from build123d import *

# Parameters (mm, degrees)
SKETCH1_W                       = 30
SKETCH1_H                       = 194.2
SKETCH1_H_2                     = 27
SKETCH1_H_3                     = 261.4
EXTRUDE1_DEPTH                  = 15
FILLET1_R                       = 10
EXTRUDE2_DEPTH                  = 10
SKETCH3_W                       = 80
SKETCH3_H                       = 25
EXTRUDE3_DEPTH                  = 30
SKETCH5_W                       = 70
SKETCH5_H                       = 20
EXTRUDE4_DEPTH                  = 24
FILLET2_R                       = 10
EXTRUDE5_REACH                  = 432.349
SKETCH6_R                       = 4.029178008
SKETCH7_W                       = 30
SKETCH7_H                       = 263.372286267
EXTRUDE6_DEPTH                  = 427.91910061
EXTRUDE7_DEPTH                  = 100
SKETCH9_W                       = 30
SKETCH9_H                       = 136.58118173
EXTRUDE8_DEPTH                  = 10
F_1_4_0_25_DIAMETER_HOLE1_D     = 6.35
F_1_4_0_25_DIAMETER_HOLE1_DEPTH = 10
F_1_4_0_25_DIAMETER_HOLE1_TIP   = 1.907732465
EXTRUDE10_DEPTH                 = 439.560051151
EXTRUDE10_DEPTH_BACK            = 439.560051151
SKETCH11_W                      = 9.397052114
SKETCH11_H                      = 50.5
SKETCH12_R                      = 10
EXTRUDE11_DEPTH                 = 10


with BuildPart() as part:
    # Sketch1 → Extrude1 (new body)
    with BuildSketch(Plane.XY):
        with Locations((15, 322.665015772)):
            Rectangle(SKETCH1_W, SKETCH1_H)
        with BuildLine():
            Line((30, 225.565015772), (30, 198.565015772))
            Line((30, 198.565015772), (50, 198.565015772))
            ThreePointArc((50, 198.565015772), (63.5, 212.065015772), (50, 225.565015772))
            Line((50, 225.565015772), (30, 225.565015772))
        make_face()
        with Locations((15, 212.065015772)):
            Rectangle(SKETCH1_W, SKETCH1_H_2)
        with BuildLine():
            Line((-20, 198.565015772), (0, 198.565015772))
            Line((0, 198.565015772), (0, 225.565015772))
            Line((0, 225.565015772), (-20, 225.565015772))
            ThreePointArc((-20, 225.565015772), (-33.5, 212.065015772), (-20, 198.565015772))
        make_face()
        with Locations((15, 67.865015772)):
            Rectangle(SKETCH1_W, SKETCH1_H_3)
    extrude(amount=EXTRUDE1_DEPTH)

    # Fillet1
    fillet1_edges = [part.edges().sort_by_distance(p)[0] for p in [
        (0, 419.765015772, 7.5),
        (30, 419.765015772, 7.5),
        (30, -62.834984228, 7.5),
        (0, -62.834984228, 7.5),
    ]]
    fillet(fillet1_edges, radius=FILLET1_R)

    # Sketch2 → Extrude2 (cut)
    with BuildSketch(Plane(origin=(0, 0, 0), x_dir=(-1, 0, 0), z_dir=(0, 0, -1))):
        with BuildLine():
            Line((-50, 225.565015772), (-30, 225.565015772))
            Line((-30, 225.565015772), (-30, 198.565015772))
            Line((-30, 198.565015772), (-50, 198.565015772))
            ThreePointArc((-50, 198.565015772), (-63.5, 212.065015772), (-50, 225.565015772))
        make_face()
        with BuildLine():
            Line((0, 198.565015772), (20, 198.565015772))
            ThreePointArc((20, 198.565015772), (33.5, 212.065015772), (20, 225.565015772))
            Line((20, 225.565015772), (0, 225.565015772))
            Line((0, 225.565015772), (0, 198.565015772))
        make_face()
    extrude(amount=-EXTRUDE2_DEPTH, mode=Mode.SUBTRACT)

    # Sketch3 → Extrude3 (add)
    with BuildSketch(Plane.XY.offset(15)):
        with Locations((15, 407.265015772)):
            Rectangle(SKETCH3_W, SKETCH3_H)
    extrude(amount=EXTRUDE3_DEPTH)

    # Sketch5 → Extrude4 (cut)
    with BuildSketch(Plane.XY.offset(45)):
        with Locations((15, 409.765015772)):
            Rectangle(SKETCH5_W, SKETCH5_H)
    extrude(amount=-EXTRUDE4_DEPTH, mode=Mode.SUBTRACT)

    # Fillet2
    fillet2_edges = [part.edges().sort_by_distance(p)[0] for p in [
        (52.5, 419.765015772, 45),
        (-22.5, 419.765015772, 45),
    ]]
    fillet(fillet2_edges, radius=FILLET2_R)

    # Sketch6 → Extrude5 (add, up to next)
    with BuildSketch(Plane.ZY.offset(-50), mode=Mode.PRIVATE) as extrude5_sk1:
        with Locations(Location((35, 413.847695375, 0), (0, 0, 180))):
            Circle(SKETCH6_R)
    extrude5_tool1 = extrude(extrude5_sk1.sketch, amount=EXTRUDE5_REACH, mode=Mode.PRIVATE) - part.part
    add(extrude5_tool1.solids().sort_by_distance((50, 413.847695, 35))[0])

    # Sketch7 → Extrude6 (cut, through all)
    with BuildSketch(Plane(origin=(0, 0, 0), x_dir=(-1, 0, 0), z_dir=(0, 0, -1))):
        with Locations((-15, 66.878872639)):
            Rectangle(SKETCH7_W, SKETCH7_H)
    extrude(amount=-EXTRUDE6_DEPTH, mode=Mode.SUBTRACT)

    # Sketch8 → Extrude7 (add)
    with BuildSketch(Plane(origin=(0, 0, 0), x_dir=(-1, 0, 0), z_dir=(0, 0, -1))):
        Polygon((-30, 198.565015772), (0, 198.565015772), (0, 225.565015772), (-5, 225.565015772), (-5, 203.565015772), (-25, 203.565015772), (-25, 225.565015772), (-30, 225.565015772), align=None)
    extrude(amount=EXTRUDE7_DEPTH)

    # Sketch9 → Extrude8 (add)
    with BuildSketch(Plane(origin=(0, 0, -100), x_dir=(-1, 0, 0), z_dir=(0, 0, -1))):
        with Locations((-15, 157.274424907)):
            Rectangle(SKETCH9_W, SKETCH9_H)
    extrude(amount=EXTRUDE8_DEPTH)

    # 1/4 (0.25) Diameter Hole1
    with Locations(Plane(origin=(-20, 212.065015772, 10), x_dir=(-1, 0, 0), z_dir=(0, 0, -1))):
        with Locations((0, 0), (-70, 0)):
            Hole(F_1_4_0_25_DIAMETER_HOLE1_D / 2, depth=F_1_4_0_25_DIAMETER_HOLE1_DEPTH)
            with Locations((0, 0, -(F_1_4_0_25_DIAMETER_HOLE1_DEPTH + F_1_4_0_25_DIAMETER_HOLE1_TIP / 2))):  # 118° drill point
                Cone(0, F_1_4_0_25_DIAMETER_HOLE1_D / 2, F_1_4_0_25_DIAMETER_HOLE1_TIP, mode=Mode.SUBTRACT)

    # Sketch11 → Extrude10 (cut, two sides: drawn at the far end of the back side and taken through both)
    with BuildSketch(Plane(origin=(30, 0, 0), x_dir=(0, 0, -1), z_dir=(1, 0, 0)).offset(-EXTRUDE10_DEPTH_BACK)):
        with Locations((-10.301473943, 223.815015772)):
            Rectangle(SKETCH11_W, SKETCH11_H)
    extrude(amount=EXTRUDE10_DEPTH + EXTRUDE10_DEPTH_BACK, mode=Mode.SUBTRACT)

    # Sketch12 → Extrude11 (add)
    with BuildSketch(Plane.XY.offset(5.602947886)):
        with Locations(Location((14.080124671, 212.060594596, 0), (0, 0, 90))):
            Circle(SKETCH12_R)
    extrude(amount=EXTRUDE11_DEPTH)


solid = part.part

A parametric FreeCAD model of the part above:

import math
import FreeCAD as App
import Part
import Sketcher
from FreeCAD import Vector
Q = App.Units.Quantity


def edges_at(feature, points):
    """Names of the edges that pass closest to the given points."""
    edges = feature.Shape.Edges
    near = lambda p: min(range(len(edges)), key=lambda i: edges[i].distToShape(Part.Vertex(*p))[0])
    return sorted({f"Edge{near(p) + 1}" for p in points})


def add_polygon(sketch, points):
    """Adds a closed chain of lines whose ends are joined by coincident constraints."""
    first, n = sketch.GeometryCount, len(points)
    for a, b in zip(points, points[1:] + points[:1]):
        sketch.addGeometry(Part.LineSegment(App.Vector(*a, 0), App.Vector(*b, 0)), False)
    for i in range(n):
        sketch.addConstraint(Sketcher.Constraint("Coincident", first + i, 2, first + (i + 1) % n, 1))

doc = App.newDocument("Part")
body = doc.addObject("PartDesign::Body", "Body")

sketch1 = doc.addObject("Sketcher::SketchObject", "Sketch")
body.addObject(sketch1)
sketch1.AttachmentSupport = (doc.XY_Plane, [""])
sketch1.MapMode = "FlatFace"
sketch1.addGeometry(Part.LineSegment(Vector(0, 420, 0), Vector(0, 226, 0)), False)
sketch1.addGeometry(Part.LineSegment(Vector(0, 226, 0), Vector(-20, 226, 0)), False)
sketch1.addGeometry(Part.ArcOfCircle(Part.Circle(Vector(-20, 212, 0), Vector(0, 0, 1), 14), math.radians(90), math.radians(270)), False)
sketch1.addGeometry(Part.LineSegment(Vector(-20, 199, 0), Vector(0, 199, 0)), False)
sketch1.addGeometry(Part.LineSegment(Vector(0, 199, 0), Vector(0, -63, 0)), False)
sketch1.addGeometry(Part.LineSegment(Vector(0, -63, 0), Vector(30, -63, 0)), False)
sketch1.addGeometry(Part.LineSegment(Vector(30, -63, 0), Vector(30, 199, 0)), False)
sketch1.addGeometry(Part.LineSegment(Vector(30, 199, 0), Vector(50, 199, 0)), False)
sketch1.addGeometry(Part.ArcOfCircle(Part.Circle(Vector(50, 212, 0), Vector(0, 0, 1), 14), math.radians(-90), math.radians(90)), False)
sketch1.addGeometry(Part.LineSegment(Vector(50, 226, 0), Vector(30, 226, 0)), False)
sketch1.addGeometry(Part.LineSegment(Vector(30, 226, 0), Vector(30, 420, 0)), False)
sketch1.addGeometry(Part.LineSegment(Vector(30, 420, 0), Vector(0, 420, 0)), False)
sketch1.addConstraint(Sketcher.Constraint("Coincident", 0, 2, 1, 1))
sketch1.addConstraint(Sketcher.Constraint("Tangent", 1, 2, 2, 1))
sketch1.addConstraint(Sketcher.Constraint("Tangent", 2, 2, 3, 1))
sketch1.addConstraint(Sketcher.Constraint("Coincident", 3, 2, 4, 1))
sketch1.addConstraint(Sketcher.Constraint("Coincident", 4, 2, 5, 1))
sketch1.addConstraint(Sketcher.Constraint("Coincident", 5, 2, 6, 1))
sketch1.addConstraint(Sketcher.Constraint("Coincident", 6, 2, 7, 1))
sketch1.addConstraint(Sketcher.Constraint("Tangent", 7, 2, 8, 1))
sketch1.addConstraint(Sketcher.Constraint("Tangent", 8, 2, 9, 1))
sketch1.addConstraint(Sketcher.Constraint("Coincident", 9, 2, 10, 1))
sketch1.addConstraint(Sketcher.Constraint("Coincident", 10, 2, 11, 1))
sketch1.addConstraint(Sketcher.Constraint("Coincident", 11, 2, 0, 1))
sketch1.addConstraint(Sketcher.Constraint("Vertical", 0))
sketch1.addConstraint(Sketcher.Constraint("Horizontal", 1))
sketch1.addConstraint(Sketcher.Constraint("Horizontal", 3))
sketch1.addConstraint(Sketcher.Constraint("Vertical", 4))
sketch1.addConstraint(Sketcher.Constraint("Horizontal", 5))
sketch1.addConstraint(Sketcher.Constraint("Vertical", 6))
sketch1.addConstraint(Sketcher.Constraint("Horizontal", 7))
sketch1.addConstraint(Sketcher.Constraint("Horizontal", 9))
sketch1.addConstraint(Sketcher.Constraint("Vertical", 10))
sketch1.addConstraint(Sketcher.Constraint("Horizontal", 11))
sketch1.addConstraint(Sketcher.Constraint("Equal", 2, 8))
sketch1.addConstraint(Sketcher.Constraint("PointOnObject", 0, 2, -2))
sketch1.addConstraint(Sketcher.Constraint("PointOnObject", 3, 2, -2))
sketch1.addConstraint(Sketcher.Constraint("Horizontal", 2, 3, 8, 3))
sketch1.addConstraint(Sketcher.Constraint("Vertical", 6, 2, 9, 2))
sketch1.addConstraint(Sketcher.Constraint("Equal", 3, 7))
sketch1.addConstraint(Sketcher.Constraint("Radius", 2, Q("13.5 mm")))
sketch1.addConstraint(Sketcher.Constraint("DistanceX", 1, 2, 1, 1, Q("20 mm")))
sketch1.addConstraint(Sketcher.Constraint("DistanceX", 5, 1, 5, 2, Q("30 mm")))
sketch1.addConstraint(Sketcher.Constraint("DistanceY", 0, 2, 0, 1, Q("194.2 mm")))
sketch1.addConstraint(Sketcher.Constraint("DistanceY", 4, 2, 4, 1, Q("261.4 mm")))
sketch1.addConstraint(Sketcher.Constraint("DistanceY", -1, 1, 2, 3, Q("212.065016 mm")))
pad1 = doc.addObject("PartDesign::Pad", "Pad")
body.addObject(pad1)
pad1.Profile = sketch1
pad1.Length = 15
doc.recompute()

fillet = doc.addObject("PartDesign::Fillet", "Fillet")
body.addObject(fillet)
fillet.Base = (pad1, edges_at(pad1, [
    (0, 419.765, 7.5),
    (30, 419.765, 7.5),
    (30, -62.835, 7.5),
    (0, -62.835, 7.5),
]))
fillet.Radius = 10

sketch2 = doc.addObject("Sketcher::SketchObject", "Sketch001")
body.addObject(sketch2)
sketch2.AttachmentSupport = (doc.XY_Plane, [""])
sketch2.MapMode = "FlatFace"
sketch2.addGeometry(Part.LineSegment(Vector(30, 226, 0), Vector(50, 226, 0)), False)
sketch2.addGeometry(Part.ArcOfCircle(Part.Circle(Vector(50, 212, 0), Vector(0, 0, 1), 14), math.radians(-90), math.radians(90)), False)
sketch2.addGeometry(Part.LineSegment(Vector(50, 199, 0), Vector(30, 199, 0)), False)
sketch2.addGeometry(Part.LineSegment(Vector(30, 199, 0), Vector(30, 226, 0)), False)
sketch2.addGeometry(Part.LineSegment(Vector(0, 199, 0), Vector(-20, 199, 0)), False)
sketch2.addGeometry(Part.ArcOfCircle(Part.Circle(Vector(-20, 212, 0), Vector(0, 0, 1), 14), math.radians(90), math.radians(270)), False)
sketch2.addGeometry(Part.LineSegment(Vector(-20, 226, 0), Vector(0, 226, 0)), False)
sketch2.addGeometry(Part.LineSegment(Vector(0, 226, 0), Vector(0, 199, 0)), False)
sketch2.addConstraint(Sketcher.Constraint("Tangent", 0, 2, 1, 2))
sketch2.addConstraint(Sketcher.Constraint("Tangent", 1, 1, 2, 1))
sketch2.addConstraint(Sketcher.Constraint("Coincident", 2, 2, 3, 1))
sketch2.addConstraint(Sketcher.Constraint("Coincident", 3, 2, 0, 1))
sketch2.addConstraint(Sketcher.Constraint("Tangent", 4, 2, 5, 2))
sketch2.addConstraint(Sketcher.Constraint("Tangent", 5, 1, 6, 1))
sketch2.addConstraint(Sketcher.Constraint("Coincident", 6, 2, 7, 1))
sketch2.addConstraint(Sketcher.Constraint("Coincident", 7, 2, 4, 1))
sketch2.addConstraint(Sketcher.Constraint("Horizontal", 0))
sketch2.addConstraint(Sketcher.Constraint("Horizontal", 2))
sketch2.addConstraint(Sketcher.Constraint("Vertical", 3))
sketch2.addConstraint(Sketcher.Constraint("Horizontal", 4))
sketch2.addConstraint(Sketcher.Constraint("Horizontal", 6))
sketch2.addConstraint(Sketcher.Constraint("Vertical", 7))
sketch2.addConstraint(Sketcher.Constraint("Equal", 1, 5))
sketch2.addConstraint(Sketcher.Constraint("PointOnObject", 6, 2, -2))
sketch2.addConstraint(Sketcher.Constraint("Horizontal", 1, 3, 5, 3))
sketch2.addConstraint(Sketcher.Constraint("Equal", 2, 4))
sketch2.addConstraint(Sketcher.Constraint("Radius", 1, Q("13.5 mm")))
sketch2.addConstraint(Sketcher.Constraint("DistanceX", 0, 1, 0, 2, Q("20 mm")))
sketch2.addConstraint(Sketcher.Constraint("DistanceX", -1, 1, 1, 3, Q("50 mm")))
sketch2.addConstraint(Sketcher.Constraint("DistanceY", -1, 1, 1, 3, Q("212.065016 mm")))
pocket1 = doc.addObject("PartDesign::Pocket", "Pocket")
body.addObject(pocket1)
pocket1.Profile = sketch2
pocket1.Length = 10
pocket1.Reversed = True

sketch3 = doc.addObject("Sketcher::SketchObject", "Sketch002")
body.addObject(sketch3)
sketch3.AttachmentSupport = (doc.XY_Plane, [""])
sketch3.MapMode = "FlatFace"
sketch3.AttachmentOffset = App.Placement(Vector(0, 0, 15), App.Rotation())
add_polygon(sketch3, [(-25, 420), (-25, 395), (55, 395), (55, 420)])
sketch3.addConstraint(Sketcher.Constraint("Vertical", 0))
sketch3.addConstraint(Sketcher.Constraint("Horizontal", 1))
sketch3.addConstraint(Sketcher.Constraint("Vertical", 2))
sketch3.addConstraint(Sketcher.Constraint("Horizontal", 3))
sketch3.addConstraint(Sketcher.Constraint("DistanceX", 1, 1, 1, 2, Q("80 mm")))
sketch3.addConstraint(Sketcher.Constraint("DistanceY", 0, 2, 0, 1, Q("25 mm")))
sketch3.addConstraint(Sketcher.Constraint("DistanceX", 0, 2, -1, 1, Q("25 mm")))
sketch3.addConstraint(Sketcher.Constraint("DistanceY", -1, 1, 0, 2, Q("394.765016 mm")))
pad2 = doc.addObject("PartDesign::Pad", "Pad001")
body.addObject(pad2)
pad2.Profile = sketch3
pad2.Length = 30

sketch4 = doc.addObject("Sketcher::SketchObject", "Sketch003")
body.addObject(sketch4)
sketch4.AttachmentSupport = (doc.XY_Plane, [""])
sketch4.MapMode = "FlatFace"
sketch4.AttachmentOffset = App.Placement(Vector(0, 0, 45), App.Rotation())
add_polygon(sketch4, [(-20, 420), (-20, 400), (50, 400), (50, 420)])
sketch4.addConstraint(Sketcher.Constraint("Vertical", 0))
sketch4.addConstraint(Sketcher.Constraint("Horizontal", 1))
sketch4.addConstraint(Sketcher.Constraint("Vertical", 2))
sketch4.addConstraint(Sketcher.Constraint("Horizontal", 3))
sketch4.addConstraint(Sketcher.Constraint("DistanceX", 1, 1, 1, 2, Q("70 mm")))
sketch4.addConstraint(Sketcher.Constraint("DistanceY", 0, 2, 0, 1, Q("20 mm")))
sketch4.addConstraint(Sketcher.Constraint("DistanceX", 0, 2, -1, 1, Q("20 mm")))
sketch4.addConstraint(Sketcher.Constraint("DistanceY", -1, 1, 0, 2, Q("399.765016 mm")))
pocket2 = doc.addObject("PartDesign::Pocket", "Pocket001")
body.addObject(pocket2)
pocket2.Profile = sketch4
pocket2.Length = 24
doc.recompute()

fillet2 = doc.addObject("PartDesign::Fillet", "Fillet001")
body.addObject(fillet2)
fillet2.Base = (pocket2, edges_at(pocket2, [(52.5, 419.765, 45), (-22.5, 419.765, 45)]))
fillet2.Radius = 10

sketch5 = doc.addObject("Sketcher::SketchObject", "Sketch004")
body.addObject(sketch5)
sketch5.AttachmentSupport = (doc.YZ_Plane, [""])
sketch5.MapMode = "FlatFace"
sketch5.AttachmentOffset = App.Placement(Vector(0, 0, 50), App.Rotation())
sketch5.addGeometry(Part.Circle(Vector(413.8, 35, 0), Vector(0, 0, 1), 4), False)
sketch5.addConstraint(Sketcher.Constraint("DistanceY", -1, 1, 0, 3, Q("35 mm")))
sketch5.addConstraint(Sketcher.Constraint("Diameter", 0, Q("8.058356 mm")))
sketch5.addConstraint(Sketcher.Constraint("DistanceX", -1, 1, 0, 3, Q("413.847695 mm")))
pad3 = doc.addObject("PartDesign::Pad", "Pad002")
body.addObject(pad3)
pad3.Profile = sketch5
pad3.Type = "UpToFirst"
pad3.Reversed = True

sketch6 = doc.addObject("Sketcher::SketchObject", "Sketch005")
body.addObject(sketch6)
sketch6.AttachmentSupport = (doc.XY_Plane, [""])
sketch6.MapMode = "FlatFace"
add_polygon(sketch6, [(30, 199), (30, -65), (0, -65), (0, 199)])
sketch6.addConstraint(Sketcher.Constraint("Vertical", 0))
sketch6.addConstraint(Sketcher.Constraint("Horizontal", 1))
sketch6.addConstraint(Sketcher.Constraint("Vertical", 2))
sketch6.addConstraint(Sketcher.Constraint("Horizontal", 3))
sketch6.addConstraint(Sketcher.Constraint("PointOnObject", 1, 2, -2))
sketch6.addConstraint(Sketcher.Constraint("DistanceX", 1, 2, 1, 1, Q("30 mm")))
sketch6.addConstraint(Sketcher.Constraint("DistanceY", 0, 2, 0, 1, Q("263.372286 mm")))
sketch6.addConstraint(Sketcher.Constraint("DistanceY", 0, 2, -1, 1, Q("64.80727 mm")))
pocket3 = doc.addObject("PartDesign::Pocket", "Pocket002")
body.addObject(pocket3)
pocket3.Profile = sketch6
pocket3.Type = "ThroughAll"
pocket3.Reversed = True

sketch7 = doc.addObject("Sketcher::SketchObject", "Sketch006")
body.addObject(sketch7)
sketch7.AttachmentSupport = (doc.XY_Plane, [""])
sketch7.MapMode = "FlatFace"
add_polygon(sketch7, [(30, 199), (0, 199), (0, 226), (5, 226), (5, 204), (25, 204), (25, 226), (30, 226)])
sketch7.addConstraint(Sketcher.Constraint("Horizontal", 0))
sketch7.addConstraint(Sketcher.Constraint("Vertical", 1))
sketch7.addConstraint(Sketcher.Constraint("Horizontal", 2))
sketch7.addConstraint(Sketcher.Constraint("Vertical", 3))
sketch7.addConstraint(Sketcher.Constraint("Horizontal", 4))
sketch7.addConstraint(Sketcher.Constraint("Vertical", 5))
sketch7.addConstraint(Sketcher.Constraint("Horizontal", 6))
sketch7.addConstraint(Sketcher.Constraint("Vertical", 7))
sketch7.addConstraint(Sketcher.Constraint("PointOnObject", 0, 2, -2))
sketch7.addConstraint(Sketcher.Constraint("Horizontal", 2, 2, 5, 2))
sketch7.addConstraint(Sketcher.Constraint("Equal", 2, 6))
sketch7.addConstraint(Sketcher.Constraint("DistanceX", 0, 2, 0, 1, Q("30 mm")))
sketch7.addConstraint(Sketcher.Constraint("DistanceX", 2, 1, 2, 2, Q("5 mm")))
sketch7.addConstraint(Sketcher.Constraint("DistanceY", 1, 1, 1, 2, Q("27 mm")))
sketch7.addConstraint(Sketcher.Constraint("DistanceY", 3, 2, 3, 1, Q("22 mm")))
sketch7.addConstraint(Sketcher.Constraint("DistanceY", -1, 1, 0, 2, Q("198.565016 mm")))
pad4 = doc.addObject("PartDesign::Pad", "Pad003")
body.addObject(pad4)
pad4.Profile = sketch7
pad4.Length = 100
pad4.Reversed = True

sketch8 = doc.addObject("Sketcher::SketchObject", "Sketch007")
body.addObject(sketch8)
sketch8.AttachmentSupport = (doc.XY_Plane, [""])
sketch8.MapMode = "FlatFace"
sketch8.AttachmentOffset = App.Placement(Vector(0, 0, -100), App.Rotation())
add_polygon(sketch8, [(30, 226), (30, 89), (0, 89), (0, 226)])
sketch8.addConstraint(Sketcher.Constraint("Vertical", 0))
sketch8.addConstraint(Sketcher.Constraint("Horizontal", 1))
sketch8.addConstraint(Sketcher.Constraint("Vertical", 2))
sketch8.addConstraint(Sketcher.Constraint("Horizontal", 3))
sketch8.addConstraint(Sketcher.Constraint("PointOnObject", 1, 2, -2))
sketch8.addConstraint(Sketcher.Constraint("DistanceX", 1, 2, 1, 1, Q("30 mm")))
sketch8.addConstraint(Sketcher.Constraint("DistanceY", 0, 2, 0, 1, Q("136.581182 mm")))
sketch8.addConstraint(Sketcher.Constraint("DistanceY", -1, 1, 0, 2, Q("88.983834 mm")))
pad5 = doc.addObject("PartDesign::Pad", "Pad004")
body.addObject(pad5)
pad5.Profile = sketch8
pad5.Length = 10
pad5.Reversed = True

sketch9 = doc.addObject("Sketcher::SketchObject", "Sketch008")
body.addObject(sketch9)
sketch9.AttachmentSupport = (doc.XY_Plane, [""])
sketch9.MapMode = "FlatFace"
sketch9.AttachmentOffset = App.Placement(Vector(0, 0, 10), App.Rotation())
sketch9.addGeometry(Part.Circle(Vector(-20, 212.1, 0), Vector(0, 0, 1), 3.2), False)
sketch9.addGeometry(Part.Circle(Vector(50, 212.1, 0), Vector(0, 0, 1), 3.2), False)
sketch9.addConstraint(Sketcher.Constraint("Equal", 0, 1))
sketch9.addConstraint(Sketcher.Constraint("Horizontal", 0, 3, 1, 3))
sketch9.addConstraint(Sketcher.Constraint("Diameter", 0, Q("6.35 mm")))
sketch9.addConstraint(Sketcher.Constraint("DistanceX", 0, 3, -1, 1, Q("20 mm")))
sketch9.addConstraint(Sketcher.Constraint("DistanceX", -1, 1, 1, 3, Q("50 mm")))
sketch9.addConstraint(Sketcher.Constraint("DistanceY", -1, 1, 0, 3, Q("212.065016 mm")))
doc.recompute()
hole = doc.addObject("PartDesign::Hole", "Hole")
body.addObject(hole)
hole.Profile = sketch9
hole.ThreadType = "None"
hole.Diameter = 6.35
hole.DepthType = "Dimension"
hole.Depth = 10
hole.DrillPoint = "Angled"
hole.DrillPointAngle = 118
hole.Reversed = True

sketch10 = doc.addObject("Sketcher::SketchObject", "Sketch009")
body.addObject(sketch10)
sketch10.AttachmentSupport = (doc.YZ_Plane, [""])
sketch10.MapMode = "FlatFace"
sketch10.AttachmentOffset = App.Placement(Vector(0, 0, 30), App.Rotation())
add_polygon(sketch10, [(249, 15), (199, 15), (199, 6), (249, 6)])
sketch10.addConstraint(Sketcher.Constraint("Horizontal", 0))
sketch10.addConstraint(Sketcher.Constraint("Vertical", 1))
sketch10.addConstraint(Sketcher.Constraint("Horizontal", 2))
sketch10.addConstraint(Sketcher.Constraint("Vertical", 3))
sketch10.addConstraint(Sketcher.Constraint("DistanceX", 0, 2, 0, 1, Q("50.5 mm")))
sketch10.addConstraint(Sketcher.Constraint("DistanceY", -1, 1, 0, 2, Q("15 mm")))
sketch10.addConstraint(Sketcher.Constraint("DistanceY", 1, 2, 1, 1, Q("9.397052 mm")))
sketch10.addConstraint(Sketcher.Constraint("DistanceX", -1, 1, 0, 2, Q("198.565016 mm")))
pocket4 = doc.addObject("PartDesign::Pocket", "Pocket003")
body.addObject(pocket4)
pocket4.Profile = sketch10
pocket4.Type = "ThroughAll"
pocket4.Midplane = True

sketch11 = doc.addObject("Sketcher::SketchObject", "Sketch010")
body.addObject(sketch11)
sketch11.AttachmentSupport = (doc.XY_Plane, [""])
sketch11.MapMode = "FlatFace"
sketch11.AttachmentOffset = App.Placement(Vector(0, 0, 5.602948), App.Rotation())
sketch11.addGeometry(Part.Circle(Vector(14, 212, 0), Vector(0, 0, 1), 10), False)
sketch11.addConstraint(Sketcher.Constraint("Diameter", 0, Q("20 mm")))
sketch11.addConstraint(Sketcher.Constraint("DistanceX", -1, 1, 0, 3, Q("14.080125 mm")))
sketch11.addConstraint(Sketcher.Constraint("DistanceY", -1, 1, 0, 3, Q("212.060595 mm")))
pad6 = doc.addObject("PartDesign::Pad", "Pad005")
body.addObject(pad6)
pad6.Profile = sketch11
pad6.Length = 10

doc.recompute()
